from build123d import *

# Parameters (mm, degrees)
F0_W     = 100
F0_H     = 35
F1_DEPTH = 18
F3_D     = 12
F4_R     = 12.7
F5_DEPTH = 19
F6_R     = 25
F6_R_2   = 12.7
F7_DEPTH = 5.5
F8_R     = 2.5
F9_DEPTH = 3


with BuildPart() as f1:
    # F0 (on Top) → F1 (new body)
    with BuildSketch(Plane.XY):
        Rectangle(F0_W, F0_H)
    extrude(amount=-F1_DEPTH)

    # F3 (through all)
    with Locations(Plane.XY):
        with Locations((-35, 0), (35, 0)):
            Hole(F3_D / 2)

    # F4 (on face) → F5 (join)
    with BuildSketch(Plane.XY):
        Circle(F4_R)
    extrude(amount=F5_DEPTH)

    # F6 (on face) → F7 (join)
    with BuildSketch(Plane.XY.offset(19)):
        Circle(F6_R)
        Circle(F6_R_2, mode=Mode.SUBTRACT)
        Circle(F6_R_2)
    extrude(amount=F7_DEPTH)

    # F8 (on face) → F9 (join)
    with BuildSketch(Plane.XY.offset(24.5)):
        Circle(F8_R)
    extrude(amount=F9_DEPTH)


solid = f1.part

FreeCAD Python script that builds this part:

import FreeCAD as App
import Part
import Sketcher
from FreeCAD import Vector
Q = App.Units.Quantity


def add_polygon(sketch, points):
    """Adds a closed chain of lines whose ends are joined by coincident constraints."""
    first, n = sketch.GeometryCount, len(points)
    for a, b in zip(points, points[1:] + points[:1]):
        sketch.addGeometry(Part.LineSegment(App.Vector(*a, 0), App.Vector(*b, 0)), False)
    for i in range(n):
        sketch.addConstraint(Sketcher.Constraint("Coincident", first + i, 2, first + (i + 1) % n, 1))

doc = App.newDocument("Part")
params = doc.addObject("Spreadsheet::Sheet", "Params")
for row, (alias, value) in enumerate([
    ("sketch1_width", "100 mm"),
    ("sketch1_height", "35 mm"),
    ("pad1_length", "18 mm"),
    ("sketch2_diameter", "12 mm"),
    ("hole_diameter", "12 mm"),
    ("sketch3_diameter", "25.4 mm"),
    ("pad2_length", "19 mm"),
    ("sketch4_diameter", "50 mm"),
    ("pad3_length", "5.5 mm"),
    ("sketch5_diameter", "5 mm"),
    ("pad4_length", "3 mm"),
], start=1):
    params.set(f"A{row}", alias)
    params.set(f"B{row}", "=" + value)
    params.setAlias(f"B{row}", alias)

body = doc.addObject("PartDesign::Body", "Body")

sketch1 = body.newObject("Sketcher::SketchObject", "Sketch")
sketch1.AttachmentSupport = (doc.getObject("XY_Plane"), [""])
sketch1.MapMode = "FlatFace"
add_polygon(sketch1, [(-50, 17.5), (-50, -17.5), (50, -17.5), (50, 17.5)])
sketch1.addConstraint([
    Sketcher.Constraint("Vertical", 0),
    Sketcher.Constraint("Horizontal", 1),
    Sketcher.Constraint("Vertical", 2),
    Sketcher.Constraint("Horizontal", 3),
    Sketcher.Constraint("Symmetric", 0, 2, 2, 2, -1, 1),
    Sketcher.Constraint("DistanceX", 1, 1, 1, 2, Q("100 mm")),
    Sketcher.Constraint("DistanceY", 0, 2, 0, 1, Q("35 mm")),
])
sketch1.setExpression("Constraints[9]", "Params.sketch1_width")
sketch1.setExpression("Constraints[10]", "Params.sketch1_height")
pad1 = body.newObject("PartDesign::Pad", "Pad")
pad1.Profile = sketch1
pad1.setExpression("Length", "Params.pad1_length")
pad1.Reversed = True

sketch2 = body.newObject("Sketcher::SketchObject", "Sketch001")
sketch2.AttachmentSupport = (doc.getObject("XY_Plane"), [""])
sketch2.MapMode = "FlatFace"
sketch2.addGeometry([
    Part.Circle(Vector(-35, 0, 0), Vector(0, 0, 1), 6),
    Part.Circle(Vector(35, 0, 0), Vector(0, 0, 1), 6),
], False)
sketch2.addConstraint([
    Sketcher.Constraint("Equal", 0, 1),
    Sketcher.Constraint("Symmetric", 0, 3, 1, 3, -1, 1),
    Sketcher.Constraint("PointOnObject", 0, 3, -1),
    Sketcher.Constraint("Diameter", 0, Q("12 mm")),
    Sketcher.Constraint("DistanceX", 0, 3, -1, 1, Q("35 mm")),
])
sketch2.setExpression("Constraints[3]", "Params.sketch2_diameter")
doc.recompute()
hole = body.newObject("PartDesign::Hole", "Hole")
hole.Profile = sketch2
hole.ThreadType = "None"
hole.setExpression("Diameter", "Params.hole_diameter")
hole.DepthType = "ThroughAll"

sketch3 = body.newObject("Sketcher::SketchObject", "Sketch002")
sketch3.AttachmentSupport = (doc.getObject("XY_Plane"), [""])
sketch3.MapMode = "FlatFace"
sketch3.addGeometry(Part.Circle(Vector(0, 0, 0), Vector(0, 0, 1), 12.7), False)
sketch3.addConstraint([
    Sketcher.Constraint("Coincident", 0, 3, -1, 1),
    Sketcher.Constraint("Diameter", 0, Q("25.4 mm")),
])
sketch3.setExpression("Constraints[1]", "Params.sketch3_diameter")
pad2 = body.newObject("PartDesign::Pad", "Pad001")
pad2.Profile = sketch3
pad2.setExpression("Length", "Params.pad2_length")

sketch4 = body.newObject("Sketcher::SketchObject", "Sketch003")
sketch4.AttachmentSupport = (doc.getObject("XY_Plane"), [""])
sketch4.MapMode = "FlatFace"
sketch4.AttachmentOffset = App.Placement(Vector(0, 0, 19), App.Rotation())
sketch4.addGeometry(Part.Circle(Vector(0, 0, 0), Vector(0, 0, 1), 25), False)
sketch4.addConstraint([
    Sketcher.Constraint("Coincident", 0, 3, -1, 1),
    Sketcher.Constraint("Diameter", 0, Q("50 mm")),
])
sketch4.setExpression("Constraints[1]", "Params.sketch4_diameter")
pad3 = body.newObject("PartDesign::Pad", "Pad002")
pad3.Profile = sketch4
pad3.setExpression("Length", "Params.pad3_length")

sketch5 = body.newObject("Sketcher::SketchObject", "Sketch004")
sketch5.AttachmentSupport = (doc.getObject("XY_Plane"), [""])
sketch5.MapMode = "FlatFace"
sketch5.AttachmentOffset = App.Placement(Vector(0, 0, 24.5), App.Rotation())
sketch5.addGeometry(Part.Circle(Vector(0, 0, 0), Vector(0, 0, 1), 2.5), False)
sketch5.addConstraint([
    Sketcher.Constraint("Coincident", 0, 3, -1, 1),
    Sketcher.Constraint("Diameter", 0, Q("5 mm")),
])
sketch5.setExpression("Constraints[1]", "Params.sketch5_diameter")
pad4 = body.newObject("PartDesign::Pad", "Pad003")
pad4.Profile = sketch5
pad4.setExpression("Length", "Params.pad4_length")

doc.recompute()
